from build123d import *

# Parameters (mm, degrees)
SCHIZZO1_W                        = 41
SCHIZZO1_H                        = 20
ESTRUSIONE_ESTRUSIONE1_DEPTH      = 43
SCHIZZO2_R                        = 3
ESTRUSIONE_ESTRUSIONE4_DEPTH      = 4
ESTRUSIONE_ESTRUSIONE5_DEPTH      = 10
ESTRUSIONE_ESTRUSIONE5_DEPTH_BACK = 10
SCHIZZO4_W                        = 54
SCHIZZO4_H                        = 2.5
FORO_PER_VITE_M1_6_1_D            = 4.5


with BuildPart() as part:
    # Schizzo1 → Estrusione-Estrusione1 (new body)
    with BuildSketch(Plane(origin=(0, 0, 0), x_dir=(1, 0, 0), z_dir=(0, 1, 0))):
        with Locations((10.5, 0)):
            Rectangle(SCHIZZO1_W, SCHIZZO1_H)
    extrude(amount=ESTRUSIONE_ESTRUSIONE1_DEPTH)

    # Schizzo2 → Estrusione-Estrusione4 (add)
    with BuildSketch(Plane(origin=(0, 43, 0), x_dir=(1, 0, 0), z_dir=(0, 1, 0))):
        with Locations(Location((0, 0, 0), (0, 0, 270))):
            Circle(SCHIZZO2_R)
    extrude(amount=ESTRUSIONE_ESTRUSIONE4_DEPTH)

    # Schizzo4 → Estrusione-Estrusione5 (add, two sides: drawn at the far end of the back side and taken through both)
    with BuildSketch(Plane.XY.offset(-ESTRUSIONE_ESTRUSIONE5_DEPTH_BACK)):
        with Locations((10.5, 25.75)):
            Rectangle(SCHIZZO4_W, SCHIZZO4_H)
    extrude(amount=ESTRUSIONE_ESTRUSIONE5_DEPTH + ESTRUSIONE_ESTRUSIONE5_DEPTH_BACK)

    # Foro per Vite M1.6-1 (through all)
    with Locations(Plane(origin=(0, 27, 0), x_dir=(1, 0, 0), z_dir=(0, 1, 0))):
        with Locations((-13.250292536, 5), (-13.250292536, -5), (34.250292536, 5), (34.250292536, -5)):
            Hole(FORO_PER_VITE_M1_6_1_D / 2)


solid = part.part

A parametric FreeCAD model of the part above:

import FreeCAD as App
import Part
import Sketcher

V = App.Vector


def add_polygon(sketch, points):
    """Adds a closed chain of lines whose ends are joined by coincident constraints."""
    first, n = sketch.GeometryCount, len(points)
    for a, b in zip(points, points[1:] + points[:1]):
        sketch.addGeometry(Part.LineSegment(App.Vector(*a, 0), App.Vector(*b, 0)), False)
    for i in range(n):
        sketch.addConstraint(Sketcher.Constraint("Coincident", first + i, 2, first + (i + 1) % n, 1))

doc = App.newDocument("Part")
body = doc.addObject("PartDesign::Body", "Body")

# Sketch on XZ plane
sketch1 = body.newObject("Sketcher::SketchObject", "Sketch")
sketch1.AttachmentSupport = (doc.getObject("XZ_Plane"), [""])
sketch1.MapMode = "FlatFace"
add_polygon(sketch1, [(-10, -10), (-10, 10), (31, 10), (31, -10)])  # lines 0-3
sketch1.addConstraint([
    Sketcher.Constraint("Vertical", 0),
    Sketcher.Constraint("Horizontal", 1),
    Sketcher.Constraint("Vertical", 2),
    Sketcher.Constraint("Horizontal", 3),
    Sketcher.Constraint("DistanceX", 1, 1, 1, 2, 41.0),
    Sketcher.Constraint("DistanceY", 0, 1, 0, 2, 20.0),
    Sketcher.Constraint("DistanceX", 0, 2, -1, 1, 10.0),
    Sketcher.Constraint("DistanceY", -1, 1, 0, 2, 10.0),
])
pad1 = body.newObject("PartDesign::Pad", "Pad")
pad1.Profile = sketch1
pad1.Length = 43
pad1.Reversed = True

# Sketch on XZ plane
sketch2 = body.newObject("Sketcher::SketchObject", "Sketch001")
sketch2.AttachmentSupport = (doc.getObject("XZ_Plane"), [""])
sketch2.MapMode = "FlatFace"
sketch2.AttachmentOffset = App.Placement(V(0, 0, -43), App.Rotation())
sketch2.addGeometry(Part.Circle(V(0, 0, 0), V(0, 0, 1), 3), False)
sketch2.addConstraint([
    Sketcher.Constraint("Coincident", 0, 3, -1, 1),
    Sketcher.Constraint("Diameter", 0, 6.0),
])
pad2 = body.newObject("PartDesign::Pad", "Pad001")
pad2.Profile = sketch2
pad2.Length = 4
pad2.Reversed = True

# Sketch on XY plane
sketch3 = body.newObject("Sketcher::SketchObject", "Sketch002")
sketch3.AttachmentSupport = (doc.getObject("XY_Plane"), [""])
sketch3.MapMode = "FlatFace"
add_polygon(sketch3, [(-16.5, 27), (-16.5, 24.5), (37.5, 24.5), (37.5, 27)])  # lines 0-3
sketch3.addConstraint([
    Sketcher.Constraint("Vertical", 0),
    Sketcher.Constraint("Horizontal", 1),
    Sketcher.Constraint("Vertical", 2),
    Sketcher.Constraint("Horizontal", 3),
    Sketcher.Constraint("DistanceX", 1, 1, 1, 2, 54.0),
    Sketcher.Constraint("DistanceY", 0, 2, 0, 1, 2.5),
    Sketcher.Constraint("DistanceY", -1, 1, 2, 2, 27.0),
    Sketcher.Constraint("DistanceX", 0, 2, -1, 1, 16.5),
])
pad3 = body.newObject("PartDesign::Pad", "Pad002")
pad3.Profile = sketch3
pad3.Type = "TwoLengths"
pad3.Length = 10
pad3.Length2 = 10

# Sketch on XZ plane
sketch4 = body.newObject("Sketcher::SketchObject", "Sketch003")
sketch4.AttachmentSupport = (doc.getObject("XZ_Plane"), [""])
sketch4.MapMode = "FlatFace"
sketch4.AttachmentOffset = App.Placement(V(0, 0, -27), App.Rotation())
sketch4.addGeometry([
    Part.Circle(V(-13.250293, -5, 0), V(0, 0, 1), 2.25),
    Part.Circle(V(-13.250293, 5, 0), V(0, 0, 1), 2.25),
    Part.Circle(V(34.250293, -5, 0), V(0, 0, 1), 2.25),
    Part.Circle(V(34.250293, 5, 0), V(0, 0, 1), 2.25),
], False)
sketch4.addConstraint([
    Sketcher.Constraint("Equal", 0, 1),
    Sketcher.Constraint("Equal", 1, 2),
    Sketcher.Constraint("Equal", 2, 3),
    Sketcher.Constraint("Symmetric", 0, 3, 1, 3, -1),
    Sketcher.Constraint("Symmetric", 2, 3, 3, 3, -1),
    Sketcher.Constraint("Horizontal", 0, 3, 2, 3),
    Sketcher.Constraint("Diameter", 0, 4.5),
    Sketcher.Constraint("DistanceY", 0, 3, -1, 1, 5.0),
    Sketcher.Constraint("DistanceX", 0, 3, -1, 1, 13.250293),
    Sketcher.Constraint("DistanceX", -1, 1, 2, 3, 34.250293),
])
doc.recompute()
hole = body.newObject("PartDesign::Hole", "Hole")
hole.Profile = sketch4
hole.ThreadType = "None"
hole.Diameter = 4.5
hole.DepthType = "ThroughAll"
hole.Reversed = True

doc.recompute()
